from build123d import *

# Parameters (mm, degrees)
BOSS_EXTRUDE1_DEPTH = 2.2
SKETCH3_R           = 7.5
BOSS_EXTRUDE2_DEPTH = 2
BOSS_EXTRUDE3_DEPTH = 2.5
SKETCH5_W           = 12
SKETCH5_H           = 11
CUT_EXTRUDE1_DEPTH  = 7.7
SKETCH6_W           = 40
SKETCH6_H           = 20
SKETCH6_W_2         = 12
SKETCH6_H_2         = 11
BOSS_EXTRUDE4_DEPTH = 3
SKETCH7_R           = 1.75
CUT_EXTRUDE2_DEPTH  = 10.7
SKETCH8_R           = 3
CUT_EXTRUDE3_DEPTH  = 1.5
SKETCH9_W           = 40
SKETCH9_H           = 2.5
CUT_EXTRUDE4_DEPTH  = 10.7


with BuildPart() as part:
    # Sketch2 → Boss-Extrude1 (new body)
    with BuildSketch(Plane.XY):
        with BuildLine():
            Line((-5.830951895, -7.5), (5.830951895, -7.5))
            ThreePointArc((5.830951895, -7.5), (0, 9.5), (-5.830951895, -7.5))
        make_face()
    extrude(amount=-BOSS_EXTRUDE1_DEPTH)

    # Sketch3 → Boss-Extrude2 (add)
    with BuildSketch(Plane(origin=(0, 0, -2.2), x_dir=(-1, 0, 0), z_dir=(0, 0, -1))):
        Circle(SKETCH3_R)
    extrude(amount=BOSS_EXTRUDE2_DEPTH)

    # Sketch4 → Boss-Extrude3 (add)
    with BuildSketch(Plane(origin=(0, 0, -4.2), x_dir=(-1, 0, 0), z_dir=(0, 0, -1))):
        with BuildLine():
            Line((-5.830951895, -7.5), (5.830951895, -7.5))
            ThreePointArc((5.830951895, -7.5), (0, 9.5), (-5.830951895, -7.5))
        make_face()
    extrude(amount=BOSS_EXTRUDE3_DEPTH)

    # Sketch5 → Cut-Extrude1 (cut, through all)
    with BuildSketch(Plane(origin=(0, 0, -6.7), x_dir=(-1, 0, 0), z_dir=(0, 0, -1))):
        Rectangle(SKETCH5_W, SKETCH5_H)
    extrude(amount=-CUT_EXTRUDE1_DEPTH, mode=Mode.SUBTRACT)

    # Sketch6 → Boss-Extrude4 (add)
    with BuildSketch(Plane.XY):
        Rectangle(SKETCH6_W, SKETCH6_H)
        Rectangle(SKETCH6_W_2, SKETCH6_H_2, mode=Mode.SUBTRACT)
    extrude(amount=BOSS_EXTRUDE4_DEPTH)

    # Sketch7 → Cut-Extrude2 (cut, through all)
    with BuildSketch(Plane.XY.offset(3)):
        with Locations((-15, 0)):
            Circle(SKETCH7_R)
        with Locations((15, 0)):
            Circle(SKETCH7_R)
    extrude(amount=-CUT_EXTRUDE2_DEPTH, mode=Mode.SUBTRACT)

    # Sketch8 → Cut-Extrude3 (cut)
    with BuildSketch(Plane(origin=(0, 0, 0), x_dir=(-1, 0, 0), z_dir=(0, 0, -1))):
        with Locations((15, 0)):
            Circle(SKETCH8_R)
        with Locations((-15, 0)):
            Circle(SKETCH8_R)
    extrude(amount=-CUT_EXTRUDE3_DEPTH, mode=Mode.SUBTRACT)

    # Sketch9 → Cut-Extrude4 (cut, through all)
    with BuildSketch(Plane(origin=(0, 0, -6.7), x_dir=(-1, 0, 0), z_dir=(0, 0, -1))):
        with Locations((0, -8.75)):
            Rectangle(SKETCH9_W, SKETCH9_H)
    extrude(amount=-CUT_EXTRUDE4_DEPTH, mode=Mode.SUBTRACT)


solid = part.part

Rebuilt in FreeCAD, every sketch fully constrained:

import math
import FreeCAD as App
import Part
import Sketcher
from FreeCAD import Vector
Q = App.Units.Quantity

doc = App.newDocument("Part")
body = doc.addObject("PartDesign::Body", "Body")

sketch1 = body.newObject("Sketcher::SketchObject", "Sketch")
sketch1.AttachmentSupport = (doc.getObject("XY_Plane"), [""])
sketch1.MapMode = "FlatFace"
sketch1.addGeometry(Part.LineSegment(Vector(-6, -8, 0), Vector(6, -8, 0)), False)
sketch1.addGeometry(Part.ArcOfCircle(Part.Circle(Vector(0, 0, 0), Vector(0, 0, 1), 10), math.radians(-52), math.radians(232)), False)
sketch1.addConstraint(Sketcher.Constraint("Coincident", 0, 1, 1, 2))
sketch1.addConstraint(Sketcher.Constraint("Coincident", 1, 1, 0, 2))
sketch1.addConstraint(Sketcher.Constraint("Horizontal", 0))
sketch1.addConstraint(Sketcher.Constraint("Coincident", 1, 3, -1, 1))
sketch1.addConstraint(Sketcher.Constraint("Radius", 1, Q("9.5 mm")))
sketch1.addConstraint(Sketcher.Constraint("DistanceY", 0, 1, -1, 1, Q("7.5 mm")))
pad1 = body.newObject("PartDesign::Pad", "Pad")
pad1.Profile = sketch1
pad1.Length = 2.2
pad1.Reversed = True

sketch2 = body.newObject("Sketcher::SketchObject", "Sketch001")
sketch2.AttachmentSupport = (doc.getObject("XY_Plane"), [""])
sketch2.MapMode = "FlatFace"
sketch2.AttachmentOffset = App.Placement(Vector(0, 0, -2.2), App.Rotation())
sketch2.addGeometry(Part.Circle(Vector(0, 0, 0), Vector(0, 0, 1), 8), False)
sketch2.addConstraint(Sketcher.Constraint("Coincident", 0, 3, -1, 1))
sketch2.addConstraint(Sketcher.Constraint("Diameter", 0, Q("15 mm")))
pad2 = body.newObject("PartDesign::Pad", "Pad001")
pad2.Profile = sketch2
pad2.Length = 2
pad2.Reversed = True

sketch3 = body.newObject("Sketcher::SketchObject", "Sketch002")
sketch3.AttachmentSupport = (doc.getObject("XY_Plane"), [""])
sketch3.MapMode = "FlatFace"
sketch3.AttachmentOffset = App.Placement(Vector(0, 0, -4.2), App.Rotation())
sketch3.addGeometry(Part.LineSegment(Vector(6, -8, 0), Vector(-6, -8, 0)), False)
sketch3.addGeometry(Part.ArcOfCircle(Part.Circle(Vector(0, 0, 0), Vector(0, 0, 1), 10), math.radians(-52), math.radians(232)), False)
sketch3.addConstraint(Sketcher.Constraint("Coincident", 0, 1, 1, 1))
sketch3.addConstraint(Sketcher.Constraint("Coincident", 1, 2, 0, 2))
sketch3.addConstraint(Sketcher.Constraint("Horizontal", 0))
sketch3.addConstraint(Sketcher.Constraint("Coincident", 1, 3, -1, 1))
sketch3.addConstraint(Sketcher.Constraint("Radius", 1, Q("9.5 mm")))
sketch3.addConstraint(Sketcher.Constraint("DistanceY", 0, 1, -1, 1, Q("7.5 mm")))
pad3 = body.newObject("PartDesign::Pad", "Pad002")
pad3.Profile = sketch3
pad3.Length = 2.5
pad3.Reversed = True

sketch4 = body.newObject("Sketcher::SketchObject", "Sketch003")
sketch4.AttachmentSupport = (doc.getObject("XY_Plane"), [""])
sketch4.MapMode = "FlatFace"
sketch4.AttachmentOffset = App.Placement(Vector(0, 0, -6.7), App.Rotation())
sketch4.addGeometry(Part.LineSegment(Vector(6, 6, 0), Vector(6, -6, 0)), False)
sketch4.addGeometry(Part.LineSegment(Vector(6, -6, 0), Vector(-6, -6, 0)), False)
sketch4.addGeometry(Part.LineSegment(Vector(-6, -6, 0), Vector(-6, 6, 0)), False)
sketch4.addGeometry(Part.LineSegment(Vector(-6, 6, 0), Vector(6, 6, 0)), False)
sketch4.addConstraint(Sketcher.Constraint("Coincident", 0, 2, 1, 1))
sketch4.addConstraint(Sketcher.Constraint("Coincident", 1, 2, 2, 1))
sketch4.addConstraint(Sketcher.Constraint("Coincident", 2, 2, 3, 1))
sketch4.addConstraint(Sketcher.Constraint("Coincident", 3, 2, 0, 1))
sketch4.addConstraint(Sketcher.Constraint("Vertical", 0))
sketch4.addConstraint(Sketcher.Constraint("Horizontal", 1))
sketch4.addConstraint(Sketcher.Constraint("Vertical", 2))
sketch4.addConstraint(Sketcher.Constraint("Horizontal", 3))
sketch4.addConstraint(Sketcher.Constraint("Symmetric", 0, 2, 2, 2, -1, 1))
sketch4.addConstraint(Sketcher.Constraint("DistanceX", 1, 2, 1, 1, Q("12 mm")))
sketch4.addConstraint(Sketcher.Constraint("DistanceY", 0, 2, 0, 1, Q("11 mm")))
pocket1 = body.newObject("PartDesign::Pocket", "Pocket")
pocket1.Profile = sketch4
pocket1.Type = "ThroughAll"
pocket1.Reversed = True

sketch5 = body.newObject("Sketcher::SketchObject", "Sketch004")
sketch5.AttachmentSupport = (doc.getObject("XY_Plane"), [""])
sketch5.MapMode = "FlatFace"
sketch5.addGeometry(Part.LineSegment(Vector(-20, 10, 0), Vector(-20, -10, 0)), False)
sketch5.addGeometry(Part.LineSegment(Vector(-20, -10, 0), Vector(20, -10, 0)), False)
sketch5.addGeometry(Part.LineSegment(Vector(20, -10, 0), Vector(20, 10, 0)), False)
sketch5.addGeometry(Part.LineSegment(Vector(20, 10, 0), Vector(-20, 10, 0)), False)
sketch5.addGeometry(Part.LineSegment(Vector(6, -6, 0), Vector(-6, -6, 0)), False)
sketch5.addGeometry(Part.LineSegment(Vector(-6, -6, 0), Vector(-6, 6, 0)), False)
sketch5.addGeometry(Part.LineSegment(Vector(-6, 6, 0), Vector(6, 6, 0)), False)
sketch5.addGeometry(Part.LineSegment(Vector(6, 6, 0), Vector(6, -6, 0)), False)
sketch5.addConstraint(Sketcher.Constraint("Coincident", 0, 2, 1, 1))
sketch5.addConstraint(Sketcher.Constraint("Coincident", 1, 2, 2, 1))
sketch5.addConstraint(Sketcher.Constraint("Coincident", 2, 2, 3, 1))
sketch5.addConstraint(Sketcher.Constraint("Coincident", 3, 2, 0, 1))
sketch5.addConstraint(Sketcher.Constraint("Coincident", 4, 2, 5, 1))
sketch5.addConstraint(Sketcher.Constraint("Coincident", 5, 2, 6, 1))
sketch5.addConstraint(Sketcher.Constraint("Coincident", 6, 2, 7, 1))
sketch5.addConstraint(Sketcher.Constraint("Coincident", 7, 2, 4, 1))
sketch5.addConstraint(Sketcher.Constraint("Vertical", 0))
sketch5.addConstraint(Sketcher.Constraint("Horizontal", 1))
sketch5.addConstraint(Sketcher.Constraint("Vertical", 2))
sketch5.addConstraint(Sketcher.Constraint("Horizontal", 3))
sketch5.addConstraint(Sketcher.Constraint("Horizontal", 4))
sketch5.addConstraint(Sketcher.Constraint("Vertical", 5))
sketch5.addConstraint(Sketcher.Constraint("Horizontal", 6))
sketch5.addConstraint(Sketcher.Constraint("Vertical", 7))
sketch5.addConstraint(Sketcher.Constraint("Symmetric", 0, 2, 2, 2, -1, 1))
sketch5.addConstraint(Sketcher.Constraint("Symmetric", 4, 2, 6, 2, -1, 1))
sketch5.addConstraint(Sketcher.Constraint("DistanceX", 1, 1, 1, 2, Q("40 mm")))
sketch5.addConstraint(Sketcher.Constraint("DistanceX", 4, 2, 4, 1, Q("12 mm")))
sketch5.addConstraint(Sketcher.Constraint("DistanceY", 0, 2, 0, 1, Q("20 mm")))
sketch5.addConstraint(Sketcher.Constraint("DistanceY", 5, 1, 5, 2, Q("11 mm")))
pad4 = body.newObject("PartDesign::Pad", "Pad003")
pad4.Profile = sketch5
pad4.Length = 3

sketch6 = body.newObject("Sketcher::SketchObject", "Sketch005")
sketch6.AttachmentSupport = (doc.getObject("XY_Plane"), [""])
sketch6.MapMode = "FlatFace"
sketch6.AttachmentOffset = App.Placement(Vector(0, 0, 3), App.Rotation())
sketch6.addGeometry(Part.Circle(Vector(-15, 0, 0), Vector(0, 0, 1), 1.8), False)
sketch6.addGeometry(Part.Circle(Vector(15, 0, 0), Vector(0, 0, 1), 1.8), False)
sketch6.addConstraint(Sketcher.Constraint("Equal", 0, 1))
sketch6.addConstraint(Sketcher.Constraint("Symmetric", 0, 3, 1, 3, -1, 1))
sketch6.addConstraint(Sketcher.Constraint("PointOnObject", 0, 3, -1))
sketch6.addConstraint(Sketcher.Constraint("Diameter", 0, Q("3.5 mm")))
sketch6.addConstraint(Sketcher.Constraint("DistanceX", 0, 3, -1, 1, Q("15 mm")))
pocket2 = body.newObject("PartDesign::Pocket", "Pocket001")
pocket2.Profile = sketch6
pocket2.Type = "ThroughAll"

sketch7 = body.newObject("Sketcher::SketchObject", "Sketch006")
sketch7.AttachmentSupport = (doc.getObject("XY_Plane"), [""])
sketch7.MapMode = "FlatFace"
sketch7.addGeometry(Part.Circle(Vector(-15, 0, 0), Vector(0, 0, 1), 3), False)
sketch7.addGeometry(Part.Circle(Vector(15, 0, 0), Vector(0, 0, 1), 3), False)
sketch7.addConstraint(Sketcher.Constraint("Equal", 0, 1))
sketch7.addConstraint(Sketcher.Constraint("Symmetric", 0, 3, 1, 3, -1, 1))
sketch7.addConstraint(Sketcher.Constraint("PointOnObject", 0, 3, -1))
sketch7.addConstraint(Sketcher.Constraint("Diameter", 0, Q("6 mm")))
sketch7.addConstraint(Sketcher.Constraint("DistanceX", 0, 3, -1, 1, Q("15 mm")))
pocket3 = body.newObject("PartDesign::Pocket", "Pocket002")
pocket3.Profile = sketch7
pocket3.Length = 1.5
pocket3.Reversed = True

sketch8 = body.newObject("Sketcher::SketchObject", "Sketch007")
sketch8.AttachmentSupport = (doc.getObject("XY_Plane"), [""])
sketch8.MapMode = "FlatFace"
sketch8.AttachmentOffset = App.Placement(Vector(0, 0, -6.7), App.Rotation())
sketch8.addGeometry(Part.LineSegment(Vector(20, -7.5, 0), Vector(20, -10, 0)), False)
sketch8.addGeometry(Part.LineSegment(Vector(20, -10, 0), Vector(-20, -10, 0)), False)
sketch8.addGeometry(Part.LineSegment(Vector(-20, -10, 0), Vector(-20, -7.5, 0)), False)
sketch8.addGeometry(Part.LineSegment(Vector(-20, -7.5, 0), Vector(20, -7.5, 0)), False)
sketch8.addConstraint(Sketcher.Constraint("Coincident", 0, 2, 1, 1))
sketch8.addConstraint(Sketcher.Constraint("Coincident", 1, 2, 2, 1))
sketch8.addConstraint(Sketcher.Constraint("Coincident", 2, 2, 3, 1))
sketch8.addConstraint(Sketcher.Constraint("Coincident", 3, 2, 0, 1))
sketch8.addConstraint(Sketcher.Constraint("Vertical", 0))
sketch8.addConstraint(Sketcher.Constraint("Horizontal", 1))
sketch8.addConstraint(Sketcher.Constraint("Vertical", 2))
sketch8.addConstraint(Sketcher.Constraint("Horizontal", 3))
sketch8.addConstraint(Sketcher.Constraint("DistanceX", 1, 2, 1, 1, Q("40 mm")))
sketch8.addConstraint(Sketcher.Constraint("DistanceY", 0, 2, 0, 1, Q("2.5 mm")))
sketch8.addConstraint(Sketcher.Constraint("DistanceX", -1, 1, 0, 2, Q("20 mm")))
sketch8.addConstraint(Sketcher.Constraint("DistanceY", 0, 2, -1, 1, Q("10 mm")))
pocket4 = body.newObject("PartDesign::Pocket", "Pocket003")
pocket4.Profile = sketch8
pocket4.Type = "ThroughAll"
pocket4.Reversed = True

doc.recompute()
